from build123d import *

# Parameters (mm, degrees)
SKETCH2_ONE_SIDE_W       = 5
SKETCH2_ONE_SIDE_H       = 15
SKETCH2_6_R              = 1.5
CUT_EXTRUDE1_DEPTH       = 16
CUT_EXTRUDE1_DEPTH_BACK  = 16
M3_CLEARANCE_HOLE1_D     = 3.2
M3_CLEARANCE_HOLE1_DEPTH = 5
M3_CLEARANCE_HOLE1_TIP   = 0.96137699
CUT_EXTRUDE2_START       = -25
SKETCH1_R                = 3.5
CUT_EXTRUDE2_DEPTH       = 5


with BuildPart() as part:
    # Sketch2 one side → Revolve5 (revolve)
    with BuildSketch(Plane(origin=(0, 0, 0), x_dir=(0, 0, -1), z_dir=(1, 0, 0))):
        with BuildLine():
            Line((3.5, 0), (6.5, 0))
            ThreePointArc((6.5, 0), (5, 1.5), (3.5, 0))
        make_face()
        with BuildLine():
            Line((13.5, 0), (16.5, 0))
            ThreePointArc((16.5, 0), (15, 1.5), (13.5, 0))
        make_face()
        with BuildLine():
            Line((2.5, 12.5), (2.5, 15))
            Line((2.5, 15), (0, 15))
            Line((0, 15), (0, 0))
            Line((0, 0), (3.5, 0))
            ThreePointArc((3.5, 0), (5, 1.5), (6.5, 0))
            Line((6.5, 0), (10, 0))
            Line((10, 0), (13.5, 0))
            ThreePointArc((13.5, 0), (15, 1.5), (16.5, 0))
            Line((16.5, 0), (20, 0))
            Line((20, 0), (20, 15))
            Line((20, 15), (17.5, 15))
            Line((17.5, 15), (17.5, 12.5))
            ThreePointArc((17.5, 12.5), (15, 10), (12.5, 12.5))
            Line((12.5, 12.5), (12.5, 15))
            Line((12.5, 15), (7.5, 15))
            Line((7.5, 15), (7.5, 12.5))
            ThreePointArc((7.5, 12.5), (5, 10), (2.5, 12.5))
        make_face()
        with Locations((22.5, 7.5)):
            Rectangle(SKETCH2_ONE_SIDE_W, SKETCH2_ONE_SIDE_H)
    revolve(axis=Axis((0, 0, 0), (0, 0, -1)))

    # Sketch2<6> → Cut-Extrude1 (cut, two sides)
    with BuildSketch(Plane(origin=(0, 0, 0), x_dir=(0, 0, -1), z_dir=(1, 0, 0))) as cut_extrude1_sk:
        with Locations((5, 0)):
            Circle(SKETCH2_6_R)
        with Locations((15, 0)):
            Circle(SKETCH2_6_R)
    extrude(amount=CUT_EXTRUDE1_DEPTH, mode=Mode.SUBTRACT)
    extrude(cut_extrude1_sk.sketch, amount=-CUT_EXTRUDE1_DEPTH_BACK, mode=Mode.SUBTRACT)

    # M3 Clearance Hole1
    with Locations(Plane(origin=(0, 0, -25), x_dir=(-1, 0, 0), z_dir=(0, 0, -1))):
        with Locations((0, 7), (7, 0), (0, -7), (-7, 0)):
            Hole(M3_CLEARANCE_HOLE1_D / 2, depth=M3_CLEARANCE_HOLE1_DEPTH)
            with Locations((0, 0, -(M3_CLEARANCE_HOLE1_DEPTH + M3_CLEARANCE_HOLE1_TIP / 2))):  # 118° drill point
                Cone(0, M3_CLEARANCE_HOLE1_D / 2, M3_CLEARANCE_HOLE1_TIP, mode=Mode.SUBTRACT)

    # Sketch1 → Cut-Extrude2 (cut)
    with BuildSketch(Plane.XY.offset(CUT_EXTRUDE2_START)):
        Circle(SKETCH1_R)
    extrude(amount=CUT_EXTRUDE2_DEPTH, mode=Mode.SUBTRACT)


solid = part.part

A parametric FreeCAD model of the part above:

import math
import FreeCAD as App
import Part
import Sketcher

V = App.Vector

doc = App.newDocument("Part")
body = doc.addObject("PartDesign::Body", "Body")

# Sketch on YZ plane
sketch1 = body.newObject("Sketcher::SketchObject", "Sketch")
sketch1.AttachmentSupport = (doc.getObject("YZ_Plane"), [""])
sketch1.MapMode = "FlatFace"
sketch1.addGeometry(Part.LineSegment(V(15, -17.5, 0), V(12.5, -17.5, 0)), False)
sketch1.addGeometry(Part.ArcOfCircle(Part.Circle(V(12.5, -15, 0), V(0, 0, 1), 2.5), math.radians(90), math.radians(270)), False)
sketch1.addGeometry(Part.LineSegment(V(12.5, -12.5, 0), V(15, -12.5, 0)), False)
sketch1.addGeometry(Part.LineSegment(V(15, -12.5, 0), V(15, -7.5, 0)), False)
sketch1.addGeometry(Part.LineSegment(V(15, -7.5, 0), V(12.5, -7.5, 0)), False)
sketch1.addGeometry(Part.ArcOfCircle(Part.Circle(V(12.5, -5, 0), V(0, 0, 1), 2.5), math.radians(90), math.radians(270)), False)
sketch1.addGeometry(Part.LineSegment(V(12.5, -2.5, 0), V(15, -2.5, 0)), False)
sketch1.addGeometry(Part.LineSegment(V(15, -2.5, 0), V(15, 0, 0)), False)
sketch1.addGeometry(Part.LineSegment(V(15, 0, 0), V(0, 0, 0)), False)
sketch1.addGeometry(Part.LineSegment(V(0, 0, 0), V(0, -25, 0)), False)
sketch1.addGeometry(Part.LineSegment(V(0, -25, 0), V(15, -25, 0)), False)
sketch1.addGeometry(Part.LineSegment(V(15, -25, 0), V(15, -17.5, 0)), False)
sketch1.addConstraint(Sketcher.Constraint("Tangent", 0, 2, 1, 2))
sketch1.addConstraint(Sketcher.Constraint("Tangent", 1, 1, 2, 1))
sketch1.addConstraint(Sketcher.Constraint("Coincident", 2, 2, 3, 1))
sketch1.addConstraint(Sketcher.Constraint("Coincident", 3, 2, 4, 1))
sketch1.addConstraint(Sketcher.Constraint("Tangent", 4, 2, 5, 2))
sketch1.addConstraint(Sketcher.Constraint("Tangent", 5, 1, 6, 1))
sketch1.addConstraint(Sketcher.Constraint("Coincident", 6, 2, 7, 1))
sketch1.addConstraint(Sketcher.Constraint("Coincident", 7, 2, 8, 1))
sketch1.addConstraint(Sketcher.Constraint("Coincident", 8, 2, 9, 1))
sketch1.addConstraint(Sketcher.Constraint("Coincident", 9, 2, 10, 1))
sketch1.addConstraint(Sketcher.Constraint("Coincident", 10, 2, 11, 1))
sketch1.addConstraint(Sketcher.Constraint("Coincident", 11, 2, 0, 1))
sketch1.addConstraint(Sketcher.Constraint("Horizontal", 0))
sketch1.addConstraint(Sketcher.Constraint("Horizontal", 2))
sketch1.addConstraint(Sketcher.Constraint("Vertical", 3))
sketch1.addConstraint(Sketcher.Constraint("Horizontal", 4))
sketch1.addConstraint(Sketcher.Constraint("Horizontal", 6))
sketch1.addConstraint(Sketcher.Constraint("Vertical", 7))
sketch1.addConstraint(Sketcher.Constraint("Horizontal", 8))
sketch1.addConstraint(Sketcher.Constraint("Vertical", 9))
sketch1.addConstraint(Sketcher.Constraint("Horizontal", 10))
sketch1.addConstraint(Sketcher.Constraint("Vertical", 11))
sketch1.addConstraint(Sketcher.Constraint("Coincident", 8, 2, -1, 1))
sketch1.addConstraint(Sketcher.Constraint("Equal", 1, 5))
sketch1.addConstraint(Sketcher.Constraint("Vertical", 1, 3, 5, 3))
sketch1.addConstraint(Sketcher.Constraint("Vertical", 3, 2, 6, 2))
sketch1.addConstraint(Sketcher.Constraint("Vertical", 7, 2, 10, 2))
sketch1.addConstraint(Sketcher.Constraint("Equal", 6, 7))
sketch1.addConstraint(Sketcher.Constraint("Radius", 1, 2.5))
sketch1.addConstraint(Sketcher.Constraint("DistanceX", 8, 2, 8, 1, 15.0))
sketch1.addConstraint(Sketcher.Constraint("DistanceY", 3, 1, 3, 2, 5.0))
sketch1.addConstraint(Sketcher.Constraint("DistanceY", 9, 2, 9, 1, 25.0))
sketch1.addConstraint(Sketcher.Constraint("DistanceX", 0, 2, 0, 1, 2.5))
revolution = body.newObject("PartDesign::Revolution", "Revolution")
revolution.Profile = sketch1
revolution.ReferenceAxis = (sketch1, ["V_Axis"])
revolution.Angle = 360

# Sketch on YZ plane
sketch2 = body.newObject("Sketcher::SketchObject", "Sketch001")
sketch2.AttachmentSupport = (doc.getObject("YZ_Plane"), [""])
sketch2.MapMode = "FlatFace"
sketch2.addGeometry(Part.Circle(V(0, -5, 0), V(0, 0, 1), 1.5), False)
sketch2.addGeometry(Part.Circle(V(0, -15, 0), V(0, 0, 1), 1.5), False)
sketch2.addConstraint(Sketcher.Constraint("Equal", 0, 1))
sketch2.addConstraint(Sketcher.Constraint("PointOnObject", 0, 3, -2))
sketch2.addConstraint(Sketcher.Constraint("PointOnObject", 1, 3, -2))
sketch2.addConstraint(Sketcher.Constraint("Diameter", 0, 3.0))
sketch2.addConstraint(Sketcher.Constraint("DistanceY", 0, 3, -1, 1, 5.0))
sketch2.addConstraint(Sketcher.Constraint("DistanceY", 1, 3, -1, 1, 15.0))
pocket1 = body.newObject("PartDesign::Pocket", "Pocket")
pocket1.Profile = sketch2
pocket1.Type = "ThroughAll"
pocket1.Midplane = True

# Sketch on XY plane
sketch3 = body.newObject("Sketcher::SketchObject", "Sketch002")
sketch3.AttachmentSupport = (doc.getObject("XY_Plane"), [""])
sketch3.MapMode = "FlatFace"
sketch3.AttachmentOffset = App.Placement(V(0, 0, -25), App.Rotation())
sketch3.addGeometry(Part.Circle(V(0, 7, 0), V(0, 0, 1), 1.6), False)
sketch3.addGeometry(Part.Circle(V(-7, 0, 0), V(0, 0, 1), 1.6), False)
sketch3.addGeometry(Part.Circle(V(0, -7, 0), V(0, 0, 1), 1.6), False)
sketch3.addGeometry(Part.Circle(V(7, 0, 0), V(0, 0, 1), 1.6), False)
sketch3.addConstraint(Sketcher.Constraint("Equal", 0, 1))
sketch3.addConstraint(Sketcher.Constraint("Equal", 1, 2))
sketch3.addConstraint(Sketcher.Constraint("Equal", 2, 3))
sketch3.addConstraint(Sketcher.Constraint("Symmetric", 0, 3, 2, 3, -1, 1))
sketch3.addConstraint(Sketcher.Constraint("Symmetric", 1, 3, 3, 3, -1, 1))
sketch3.addConstraint(Sketcher.Constraint("PointOnObject", 0, 3, -2))
sketch3.addConstraint(Sketcher.Constraint("PointOnObject", 1, 3, -1))
sketch3.addConstraint(Sketcher.Constraint("Diameter", 0, 3.2))
sketch3.addConstraint(Sketcher.Constraint("DistanceY", -1, 1, 0, 3, 7.0))
sketch3.addConstraint(Sketcher.Constraint("DistanceX", 1, 3, -1, 1, 7.0))
doc.recompute()
hole = body.newObject("PartDesign::Hole", "Hole")
hole.Profile = sketch3
hole.ThreadType = "None"
hole.Diameter = 3.2
hole.DepthType = "Dimension"
hole.Depth = 5
hole.DrillPoint = "Angled"
hole.DrillPointAngle = 118
hole.Reversed = True

# Sketch on XY plane
sketch4 = body.newObject("Sketcher::SketchObject", "Sketch003")
sketch4.AttachmentSupport = (doc.getObject("XY_Plane"), [""])
sketch4.MapMode = "FlatFace"
sketch4.AttachmentOffset = App.Placement(V(0, 0, -25), App.Rotation())
sketch4.addGeometry(Part.Circle(V(0, 0, 0), V(0, 0, 1), 3.5), False)
sketch4.addConstraint(Sketcher.Constraint("Coincident", 0, 3, -1, 1))
sketch4.addConstraint(Sketcher.Constraint("Diameter", 0, 7.0))
pocket2 = body.newObject("PartDesign::Pocket", "Pocket001")
pocket2.Profile = sketch4
pocket2.Length = 5
pocket2.Reversed = True

doc.recompute()
